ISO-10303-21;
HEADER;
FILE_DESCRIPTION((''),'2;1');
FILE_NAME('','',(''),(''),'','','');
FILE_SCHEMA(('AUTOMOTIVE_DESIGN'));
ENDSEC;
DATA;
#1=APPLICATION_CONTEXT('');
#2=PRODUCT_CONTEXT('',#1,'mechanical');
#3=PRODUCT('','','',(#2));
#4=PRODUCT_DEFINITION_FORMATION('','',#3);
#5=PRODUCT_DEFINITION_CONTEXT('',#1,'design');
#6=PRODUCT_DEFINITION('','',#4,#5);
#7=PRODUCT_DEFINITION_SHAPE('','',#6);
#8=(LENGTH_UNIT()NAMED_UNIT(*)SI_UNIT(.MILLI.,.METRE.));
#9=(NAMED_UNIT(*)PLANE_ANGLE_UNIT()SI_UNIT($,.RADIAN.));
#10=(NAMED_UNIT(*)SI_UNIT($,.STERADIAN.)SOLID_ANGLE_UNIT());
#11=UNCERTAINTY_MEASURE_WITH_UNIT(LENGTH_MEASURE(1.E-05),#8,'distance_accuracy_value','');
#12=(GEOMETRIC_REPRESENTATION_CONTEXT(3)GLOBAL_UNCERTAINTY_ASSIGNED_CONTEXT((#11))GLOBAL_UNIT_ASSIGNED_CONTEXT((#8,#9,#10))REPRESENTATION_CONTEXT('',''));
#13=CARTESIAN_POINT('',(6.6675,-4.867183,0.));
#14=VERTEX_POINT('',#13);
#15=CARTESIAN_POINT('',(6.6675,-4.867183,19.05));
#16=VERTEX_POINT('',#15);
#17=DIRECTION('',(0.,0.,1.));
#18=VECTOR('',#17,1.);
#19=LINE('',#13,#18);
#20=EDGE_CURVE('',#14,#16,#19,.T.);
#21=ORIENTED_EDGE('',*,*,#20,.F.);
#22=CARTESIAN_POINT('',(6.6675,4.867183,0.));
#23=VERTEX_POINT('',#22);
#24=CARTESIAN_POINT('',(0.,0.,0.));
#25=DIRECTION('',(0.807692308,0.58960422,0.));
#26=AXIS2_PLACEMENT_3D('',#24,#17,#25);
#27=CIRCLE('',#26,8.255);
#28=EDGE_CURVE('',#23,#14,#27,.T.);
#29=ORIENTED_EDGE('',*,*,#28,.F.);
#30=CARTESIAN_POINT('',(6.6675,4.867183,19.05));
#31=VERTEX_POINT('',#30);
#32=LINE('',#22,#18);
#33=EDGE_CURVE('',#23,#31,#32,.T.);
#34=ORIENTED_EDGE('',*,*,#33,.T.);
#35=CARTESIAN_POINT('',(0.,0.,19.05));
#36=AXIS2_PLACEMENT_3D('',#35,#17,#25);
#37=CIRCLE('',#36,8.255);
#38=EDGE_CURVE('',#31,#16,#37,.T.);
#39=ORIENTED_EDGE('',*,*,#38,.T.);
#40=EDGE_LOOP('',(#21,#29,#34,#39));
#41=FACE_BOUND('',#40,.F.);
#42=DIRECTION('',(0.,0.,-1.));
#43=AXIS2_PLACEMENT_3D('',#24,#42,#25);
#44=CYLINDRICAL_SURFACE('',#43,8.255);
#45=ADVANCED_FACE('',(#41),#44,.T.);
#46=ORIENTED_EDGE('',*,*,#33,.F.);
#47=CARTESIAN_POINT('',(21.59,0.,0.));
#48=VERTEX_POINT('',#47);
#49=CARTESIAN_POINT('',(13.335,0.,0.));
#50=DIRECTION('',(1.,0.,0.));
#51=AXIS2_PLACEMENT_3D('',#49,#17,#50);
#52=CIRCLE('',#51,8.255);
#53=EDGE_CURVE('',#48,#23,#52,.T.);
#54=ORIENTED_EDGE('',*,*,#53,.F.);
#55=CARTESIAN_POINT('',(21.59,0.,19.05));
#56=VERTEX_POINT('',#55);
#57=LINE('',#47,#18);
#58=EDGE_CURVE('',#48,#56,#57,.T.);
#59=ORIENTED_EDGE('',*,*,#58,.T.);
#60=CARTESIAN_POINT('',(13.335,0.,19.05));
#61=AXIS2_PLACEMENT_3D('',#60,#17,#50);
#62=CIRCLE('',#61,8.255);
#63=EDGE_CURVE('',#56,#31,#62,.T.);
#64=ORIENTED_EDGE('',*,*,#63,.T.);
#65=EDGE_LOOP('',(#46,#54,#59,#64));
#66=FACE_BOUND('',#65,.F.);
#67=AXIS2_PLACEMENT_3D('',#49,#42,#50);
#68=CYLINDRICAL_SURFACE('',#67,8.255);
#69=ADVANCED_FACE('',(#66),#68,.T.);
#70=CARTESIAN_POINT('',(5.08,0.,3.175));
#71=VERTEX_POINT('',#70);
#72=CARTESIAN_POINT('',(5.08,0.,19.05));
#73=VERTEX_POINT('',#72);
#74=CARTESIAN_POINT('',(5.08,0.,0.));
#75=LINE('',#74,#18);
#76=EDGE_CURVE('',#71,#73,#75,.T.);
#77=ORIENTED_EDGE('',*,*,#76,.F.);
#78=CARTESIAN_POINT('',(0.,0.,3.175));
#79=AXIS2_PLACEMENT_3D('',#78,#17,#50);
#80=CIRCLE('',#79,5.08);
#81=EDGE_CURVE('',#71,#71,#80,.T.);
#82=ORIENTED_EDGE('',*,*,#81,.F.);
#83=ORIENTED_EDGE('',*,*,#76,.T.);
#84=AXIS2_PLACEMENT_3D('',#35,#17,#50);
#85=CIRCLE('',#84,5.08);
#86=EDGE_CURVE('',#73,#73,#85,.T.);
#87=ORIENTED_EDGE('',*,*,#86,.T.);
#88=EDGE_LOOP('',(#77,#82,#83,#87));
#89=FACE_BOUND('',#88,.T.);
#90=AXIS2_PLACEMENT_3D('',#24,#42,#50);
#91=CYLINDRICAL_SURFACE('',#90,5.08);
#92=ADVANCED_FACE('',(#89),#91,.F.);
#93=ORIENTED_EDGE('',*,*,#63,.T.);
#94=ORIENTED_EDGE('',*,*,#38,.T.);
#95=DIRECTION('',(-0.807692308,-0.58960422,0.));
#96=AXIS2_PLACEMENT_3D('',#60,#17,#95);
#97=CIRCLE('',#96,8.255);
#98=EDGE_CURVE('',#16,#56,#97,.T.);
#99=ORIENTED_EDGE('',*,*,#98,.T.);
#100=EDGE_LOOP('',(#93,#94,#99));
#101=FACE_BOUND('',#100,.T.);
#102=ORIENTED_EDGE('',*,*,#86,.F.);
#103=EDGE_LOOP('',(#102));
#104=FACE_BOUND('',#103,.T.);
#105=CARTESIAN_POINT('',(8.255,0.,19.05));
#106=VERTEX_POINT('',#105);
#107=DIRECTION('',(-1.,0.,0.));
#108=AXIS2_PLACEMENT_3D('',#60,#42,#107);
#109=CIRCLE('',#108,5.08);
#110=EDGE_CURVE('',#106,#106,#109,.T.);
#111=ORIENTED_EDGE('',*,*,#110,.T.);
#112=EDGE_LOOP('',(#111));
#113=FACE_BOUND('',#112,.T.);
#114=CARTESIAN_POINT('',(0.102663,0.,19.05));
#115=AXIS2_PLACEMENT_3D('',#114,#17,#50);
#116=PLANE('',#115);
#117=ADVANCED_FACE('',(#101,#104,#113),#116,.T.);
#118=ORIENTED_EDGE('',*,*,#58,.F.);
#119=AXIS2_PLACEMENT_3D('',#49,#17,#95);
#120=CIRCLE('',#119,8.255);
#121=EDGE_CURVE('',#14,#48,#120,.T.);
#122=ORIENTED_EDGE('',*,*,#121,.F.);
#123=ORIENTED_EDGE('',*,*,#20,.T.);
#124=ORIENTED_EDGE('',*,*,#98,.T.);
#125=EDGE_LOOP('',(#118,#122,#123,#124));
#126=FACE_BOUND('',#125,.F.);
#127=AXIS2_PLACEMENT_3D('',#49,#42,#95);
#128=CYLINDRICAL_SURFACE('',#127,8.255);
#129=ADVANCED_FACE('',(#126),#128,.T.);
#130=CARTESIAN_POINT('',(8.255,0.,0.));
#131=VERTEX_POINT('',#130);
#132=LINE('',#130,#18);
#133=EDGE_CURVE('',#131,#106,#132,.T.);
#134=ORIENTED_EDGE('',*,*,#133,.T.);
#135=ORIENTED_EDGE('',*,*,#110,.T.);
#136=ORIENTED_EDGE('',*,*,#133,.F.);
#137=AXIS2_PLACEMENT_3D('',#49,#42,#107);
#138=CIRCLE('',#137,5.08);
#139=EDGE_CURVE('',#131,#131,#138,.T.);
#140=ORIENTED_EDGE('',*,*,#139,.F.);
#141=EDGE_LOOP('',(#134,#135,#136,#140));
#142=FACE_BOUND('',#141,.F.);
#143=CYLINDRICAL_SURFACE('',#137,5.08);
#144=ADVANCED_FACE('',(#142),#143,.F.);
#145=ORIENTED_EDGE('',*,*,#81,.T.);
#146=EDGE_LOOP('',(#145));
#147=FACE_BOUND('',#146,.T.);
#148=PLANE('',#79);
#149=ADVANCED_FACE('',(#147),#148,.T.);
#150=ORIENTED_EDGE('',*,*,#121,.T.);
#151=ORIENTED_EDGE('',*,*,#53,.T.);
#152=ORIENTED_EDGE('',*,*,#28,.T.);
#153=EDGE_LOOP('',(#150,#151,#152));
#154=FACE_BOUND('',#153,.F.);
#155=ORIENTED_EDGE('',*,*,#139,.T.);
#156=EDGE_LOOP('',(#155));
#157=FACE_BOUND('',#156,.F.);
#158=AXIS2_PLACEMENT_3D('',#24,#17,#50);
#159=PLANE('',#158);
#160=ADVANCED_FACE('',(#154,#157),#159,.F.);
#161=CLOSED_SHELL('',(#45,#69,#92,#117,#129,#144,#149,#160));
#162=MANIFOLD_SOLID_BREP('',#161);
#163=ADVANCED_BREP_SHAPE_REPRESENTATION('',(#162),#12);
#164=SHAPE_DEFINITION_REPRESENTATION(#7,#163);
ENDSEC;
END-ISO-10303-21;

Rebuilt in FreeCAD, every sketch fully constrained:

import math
import FreeCAD as App
import Part
import Sketcher
Q = App.Units.Quantity

doc = App.newDocument("Part")
params = doc.addObject("Spreadsheet::Sheet", "Params")
for row, (alias, value) in enumerate([
    ("sketch1_diameter", "0.4 in"),
    ("sketch1_radius", "0.325 in"),
    ("pad1_length", "0.75 in"),
    ("sketch2_diameter", "0.4 in"),
    ("pad2_length", "0.125 in"),
], start=1):
    params.set(f"A{row}", alias)
    params.set(f"B{row}", "=" + value)
    params.setAlias(f"B{row}", alias)

body = doc.addObject("PartDesign::Body", "Body")

sketch1 = body.newObject("Sketcher::SketchObject", "Sketch")
sketch1.AttachmentSupport = (doc.getObject("XY_Plane"), [""])
sketch1.MapMode = "FlatFace"
sketch1.addGeometry([
    Part.ArcOfCircle(Part.Circle(App.Vector(0, 0, 0), App.Vector(0, 0, 1), 8), math.radians(36), math.radians(324)),
    Part.ArcOfCircle(Part.Circle(App.Vector(13, 0, 0), App.Vector(0, 0, 1), 8), math.radians(-144), math.radians(0)),
    Part.ArcOfCircle(Part.Circle(App.Vector(13, 0, 0), App.Vector(0, 0, 1), 8), math.radians(0), math.radians(144)),
    Part.Circle(App.Vector(0, 0, 0), App.Vector(0, 0, 1), 5),
    Part.Circle(App.Vector(13, 0, 0), App.Vector(0, 0, 1), 5),
], False)
sketch1.addConstraint([
    Sketcher.Constraint("Coincident", 0, 2, 1, 1),
    Sketcher.Constraint("Tangent", 1, 2, 2, 1),
    Sketcher.Constraint("Coincident", 2, 2, 0, 1),
    Sketcher.Constraint("Coincident", 0, 3, -1, 1),
    Sketcher.Constraint("Coincident", 3, 3, -1, 1),
    Sketcher.Constraint("Coincident", 4, 3, 1, 3),
    Sketcher.Constraint("Equal", 0, 1),
    Sketcher.Constraint("Equal", 1, 2),
    Sketcher.Constraint("Equal", 3, 4),
    Sketcher.Constraint("PointOnObject", 1, 3, -1),
    Sketcher.Constraint("PointOnObject", 1, 2, -1),
    Sketcher.Constraint("Diameter", 3, Q("0.4 in")),
    Sketcher.Constraint("Radius", 0, Q("0.325 in")),
    Sketcher.Constraint("DistanceX", -1, 1, 1, 2, Q("0.85 in")),
])
sketch1.setExpression("Constraints[11]", "Params.sketch1_diameter")
sketch1.setExpression("Constraints[12]", "Params.sketch1_radius")
pad1 = body.newObject("PartDesign::Pad", "Pad")
pad1.Profile = sketch1
pad1.setExpression("Length", "Params.pad1_length")

sketch2 = body.newObject("Sketcher::SketchObject", "Sketch001")
sketch2.AttachmentSupport = (doc.getObject("XY_Plane"), [""])
sketch2.MapMode = "FlatFace"
sketch2.addGeometry(Part.Circle(App.Vector(0, 0, 0), App.Vector(0, 0, 1), 5), False)
sketch2.addConstraint([
    Sketcher.Constraint("Coincident", 0, 3, -1, 1),
    Sketcher.Constraint("Diameter", 0, Q("0.4 in")),
])
sketch2.setExpression("Constraints[1]", "Params.sketch2_diameter")
pad2 = body.newObject("PartDesign::Pad", "Pad001")
pad2.Profile = sketch2
pad2.setExpression("Length", "Params.pad2_length")

doc.recompute()
